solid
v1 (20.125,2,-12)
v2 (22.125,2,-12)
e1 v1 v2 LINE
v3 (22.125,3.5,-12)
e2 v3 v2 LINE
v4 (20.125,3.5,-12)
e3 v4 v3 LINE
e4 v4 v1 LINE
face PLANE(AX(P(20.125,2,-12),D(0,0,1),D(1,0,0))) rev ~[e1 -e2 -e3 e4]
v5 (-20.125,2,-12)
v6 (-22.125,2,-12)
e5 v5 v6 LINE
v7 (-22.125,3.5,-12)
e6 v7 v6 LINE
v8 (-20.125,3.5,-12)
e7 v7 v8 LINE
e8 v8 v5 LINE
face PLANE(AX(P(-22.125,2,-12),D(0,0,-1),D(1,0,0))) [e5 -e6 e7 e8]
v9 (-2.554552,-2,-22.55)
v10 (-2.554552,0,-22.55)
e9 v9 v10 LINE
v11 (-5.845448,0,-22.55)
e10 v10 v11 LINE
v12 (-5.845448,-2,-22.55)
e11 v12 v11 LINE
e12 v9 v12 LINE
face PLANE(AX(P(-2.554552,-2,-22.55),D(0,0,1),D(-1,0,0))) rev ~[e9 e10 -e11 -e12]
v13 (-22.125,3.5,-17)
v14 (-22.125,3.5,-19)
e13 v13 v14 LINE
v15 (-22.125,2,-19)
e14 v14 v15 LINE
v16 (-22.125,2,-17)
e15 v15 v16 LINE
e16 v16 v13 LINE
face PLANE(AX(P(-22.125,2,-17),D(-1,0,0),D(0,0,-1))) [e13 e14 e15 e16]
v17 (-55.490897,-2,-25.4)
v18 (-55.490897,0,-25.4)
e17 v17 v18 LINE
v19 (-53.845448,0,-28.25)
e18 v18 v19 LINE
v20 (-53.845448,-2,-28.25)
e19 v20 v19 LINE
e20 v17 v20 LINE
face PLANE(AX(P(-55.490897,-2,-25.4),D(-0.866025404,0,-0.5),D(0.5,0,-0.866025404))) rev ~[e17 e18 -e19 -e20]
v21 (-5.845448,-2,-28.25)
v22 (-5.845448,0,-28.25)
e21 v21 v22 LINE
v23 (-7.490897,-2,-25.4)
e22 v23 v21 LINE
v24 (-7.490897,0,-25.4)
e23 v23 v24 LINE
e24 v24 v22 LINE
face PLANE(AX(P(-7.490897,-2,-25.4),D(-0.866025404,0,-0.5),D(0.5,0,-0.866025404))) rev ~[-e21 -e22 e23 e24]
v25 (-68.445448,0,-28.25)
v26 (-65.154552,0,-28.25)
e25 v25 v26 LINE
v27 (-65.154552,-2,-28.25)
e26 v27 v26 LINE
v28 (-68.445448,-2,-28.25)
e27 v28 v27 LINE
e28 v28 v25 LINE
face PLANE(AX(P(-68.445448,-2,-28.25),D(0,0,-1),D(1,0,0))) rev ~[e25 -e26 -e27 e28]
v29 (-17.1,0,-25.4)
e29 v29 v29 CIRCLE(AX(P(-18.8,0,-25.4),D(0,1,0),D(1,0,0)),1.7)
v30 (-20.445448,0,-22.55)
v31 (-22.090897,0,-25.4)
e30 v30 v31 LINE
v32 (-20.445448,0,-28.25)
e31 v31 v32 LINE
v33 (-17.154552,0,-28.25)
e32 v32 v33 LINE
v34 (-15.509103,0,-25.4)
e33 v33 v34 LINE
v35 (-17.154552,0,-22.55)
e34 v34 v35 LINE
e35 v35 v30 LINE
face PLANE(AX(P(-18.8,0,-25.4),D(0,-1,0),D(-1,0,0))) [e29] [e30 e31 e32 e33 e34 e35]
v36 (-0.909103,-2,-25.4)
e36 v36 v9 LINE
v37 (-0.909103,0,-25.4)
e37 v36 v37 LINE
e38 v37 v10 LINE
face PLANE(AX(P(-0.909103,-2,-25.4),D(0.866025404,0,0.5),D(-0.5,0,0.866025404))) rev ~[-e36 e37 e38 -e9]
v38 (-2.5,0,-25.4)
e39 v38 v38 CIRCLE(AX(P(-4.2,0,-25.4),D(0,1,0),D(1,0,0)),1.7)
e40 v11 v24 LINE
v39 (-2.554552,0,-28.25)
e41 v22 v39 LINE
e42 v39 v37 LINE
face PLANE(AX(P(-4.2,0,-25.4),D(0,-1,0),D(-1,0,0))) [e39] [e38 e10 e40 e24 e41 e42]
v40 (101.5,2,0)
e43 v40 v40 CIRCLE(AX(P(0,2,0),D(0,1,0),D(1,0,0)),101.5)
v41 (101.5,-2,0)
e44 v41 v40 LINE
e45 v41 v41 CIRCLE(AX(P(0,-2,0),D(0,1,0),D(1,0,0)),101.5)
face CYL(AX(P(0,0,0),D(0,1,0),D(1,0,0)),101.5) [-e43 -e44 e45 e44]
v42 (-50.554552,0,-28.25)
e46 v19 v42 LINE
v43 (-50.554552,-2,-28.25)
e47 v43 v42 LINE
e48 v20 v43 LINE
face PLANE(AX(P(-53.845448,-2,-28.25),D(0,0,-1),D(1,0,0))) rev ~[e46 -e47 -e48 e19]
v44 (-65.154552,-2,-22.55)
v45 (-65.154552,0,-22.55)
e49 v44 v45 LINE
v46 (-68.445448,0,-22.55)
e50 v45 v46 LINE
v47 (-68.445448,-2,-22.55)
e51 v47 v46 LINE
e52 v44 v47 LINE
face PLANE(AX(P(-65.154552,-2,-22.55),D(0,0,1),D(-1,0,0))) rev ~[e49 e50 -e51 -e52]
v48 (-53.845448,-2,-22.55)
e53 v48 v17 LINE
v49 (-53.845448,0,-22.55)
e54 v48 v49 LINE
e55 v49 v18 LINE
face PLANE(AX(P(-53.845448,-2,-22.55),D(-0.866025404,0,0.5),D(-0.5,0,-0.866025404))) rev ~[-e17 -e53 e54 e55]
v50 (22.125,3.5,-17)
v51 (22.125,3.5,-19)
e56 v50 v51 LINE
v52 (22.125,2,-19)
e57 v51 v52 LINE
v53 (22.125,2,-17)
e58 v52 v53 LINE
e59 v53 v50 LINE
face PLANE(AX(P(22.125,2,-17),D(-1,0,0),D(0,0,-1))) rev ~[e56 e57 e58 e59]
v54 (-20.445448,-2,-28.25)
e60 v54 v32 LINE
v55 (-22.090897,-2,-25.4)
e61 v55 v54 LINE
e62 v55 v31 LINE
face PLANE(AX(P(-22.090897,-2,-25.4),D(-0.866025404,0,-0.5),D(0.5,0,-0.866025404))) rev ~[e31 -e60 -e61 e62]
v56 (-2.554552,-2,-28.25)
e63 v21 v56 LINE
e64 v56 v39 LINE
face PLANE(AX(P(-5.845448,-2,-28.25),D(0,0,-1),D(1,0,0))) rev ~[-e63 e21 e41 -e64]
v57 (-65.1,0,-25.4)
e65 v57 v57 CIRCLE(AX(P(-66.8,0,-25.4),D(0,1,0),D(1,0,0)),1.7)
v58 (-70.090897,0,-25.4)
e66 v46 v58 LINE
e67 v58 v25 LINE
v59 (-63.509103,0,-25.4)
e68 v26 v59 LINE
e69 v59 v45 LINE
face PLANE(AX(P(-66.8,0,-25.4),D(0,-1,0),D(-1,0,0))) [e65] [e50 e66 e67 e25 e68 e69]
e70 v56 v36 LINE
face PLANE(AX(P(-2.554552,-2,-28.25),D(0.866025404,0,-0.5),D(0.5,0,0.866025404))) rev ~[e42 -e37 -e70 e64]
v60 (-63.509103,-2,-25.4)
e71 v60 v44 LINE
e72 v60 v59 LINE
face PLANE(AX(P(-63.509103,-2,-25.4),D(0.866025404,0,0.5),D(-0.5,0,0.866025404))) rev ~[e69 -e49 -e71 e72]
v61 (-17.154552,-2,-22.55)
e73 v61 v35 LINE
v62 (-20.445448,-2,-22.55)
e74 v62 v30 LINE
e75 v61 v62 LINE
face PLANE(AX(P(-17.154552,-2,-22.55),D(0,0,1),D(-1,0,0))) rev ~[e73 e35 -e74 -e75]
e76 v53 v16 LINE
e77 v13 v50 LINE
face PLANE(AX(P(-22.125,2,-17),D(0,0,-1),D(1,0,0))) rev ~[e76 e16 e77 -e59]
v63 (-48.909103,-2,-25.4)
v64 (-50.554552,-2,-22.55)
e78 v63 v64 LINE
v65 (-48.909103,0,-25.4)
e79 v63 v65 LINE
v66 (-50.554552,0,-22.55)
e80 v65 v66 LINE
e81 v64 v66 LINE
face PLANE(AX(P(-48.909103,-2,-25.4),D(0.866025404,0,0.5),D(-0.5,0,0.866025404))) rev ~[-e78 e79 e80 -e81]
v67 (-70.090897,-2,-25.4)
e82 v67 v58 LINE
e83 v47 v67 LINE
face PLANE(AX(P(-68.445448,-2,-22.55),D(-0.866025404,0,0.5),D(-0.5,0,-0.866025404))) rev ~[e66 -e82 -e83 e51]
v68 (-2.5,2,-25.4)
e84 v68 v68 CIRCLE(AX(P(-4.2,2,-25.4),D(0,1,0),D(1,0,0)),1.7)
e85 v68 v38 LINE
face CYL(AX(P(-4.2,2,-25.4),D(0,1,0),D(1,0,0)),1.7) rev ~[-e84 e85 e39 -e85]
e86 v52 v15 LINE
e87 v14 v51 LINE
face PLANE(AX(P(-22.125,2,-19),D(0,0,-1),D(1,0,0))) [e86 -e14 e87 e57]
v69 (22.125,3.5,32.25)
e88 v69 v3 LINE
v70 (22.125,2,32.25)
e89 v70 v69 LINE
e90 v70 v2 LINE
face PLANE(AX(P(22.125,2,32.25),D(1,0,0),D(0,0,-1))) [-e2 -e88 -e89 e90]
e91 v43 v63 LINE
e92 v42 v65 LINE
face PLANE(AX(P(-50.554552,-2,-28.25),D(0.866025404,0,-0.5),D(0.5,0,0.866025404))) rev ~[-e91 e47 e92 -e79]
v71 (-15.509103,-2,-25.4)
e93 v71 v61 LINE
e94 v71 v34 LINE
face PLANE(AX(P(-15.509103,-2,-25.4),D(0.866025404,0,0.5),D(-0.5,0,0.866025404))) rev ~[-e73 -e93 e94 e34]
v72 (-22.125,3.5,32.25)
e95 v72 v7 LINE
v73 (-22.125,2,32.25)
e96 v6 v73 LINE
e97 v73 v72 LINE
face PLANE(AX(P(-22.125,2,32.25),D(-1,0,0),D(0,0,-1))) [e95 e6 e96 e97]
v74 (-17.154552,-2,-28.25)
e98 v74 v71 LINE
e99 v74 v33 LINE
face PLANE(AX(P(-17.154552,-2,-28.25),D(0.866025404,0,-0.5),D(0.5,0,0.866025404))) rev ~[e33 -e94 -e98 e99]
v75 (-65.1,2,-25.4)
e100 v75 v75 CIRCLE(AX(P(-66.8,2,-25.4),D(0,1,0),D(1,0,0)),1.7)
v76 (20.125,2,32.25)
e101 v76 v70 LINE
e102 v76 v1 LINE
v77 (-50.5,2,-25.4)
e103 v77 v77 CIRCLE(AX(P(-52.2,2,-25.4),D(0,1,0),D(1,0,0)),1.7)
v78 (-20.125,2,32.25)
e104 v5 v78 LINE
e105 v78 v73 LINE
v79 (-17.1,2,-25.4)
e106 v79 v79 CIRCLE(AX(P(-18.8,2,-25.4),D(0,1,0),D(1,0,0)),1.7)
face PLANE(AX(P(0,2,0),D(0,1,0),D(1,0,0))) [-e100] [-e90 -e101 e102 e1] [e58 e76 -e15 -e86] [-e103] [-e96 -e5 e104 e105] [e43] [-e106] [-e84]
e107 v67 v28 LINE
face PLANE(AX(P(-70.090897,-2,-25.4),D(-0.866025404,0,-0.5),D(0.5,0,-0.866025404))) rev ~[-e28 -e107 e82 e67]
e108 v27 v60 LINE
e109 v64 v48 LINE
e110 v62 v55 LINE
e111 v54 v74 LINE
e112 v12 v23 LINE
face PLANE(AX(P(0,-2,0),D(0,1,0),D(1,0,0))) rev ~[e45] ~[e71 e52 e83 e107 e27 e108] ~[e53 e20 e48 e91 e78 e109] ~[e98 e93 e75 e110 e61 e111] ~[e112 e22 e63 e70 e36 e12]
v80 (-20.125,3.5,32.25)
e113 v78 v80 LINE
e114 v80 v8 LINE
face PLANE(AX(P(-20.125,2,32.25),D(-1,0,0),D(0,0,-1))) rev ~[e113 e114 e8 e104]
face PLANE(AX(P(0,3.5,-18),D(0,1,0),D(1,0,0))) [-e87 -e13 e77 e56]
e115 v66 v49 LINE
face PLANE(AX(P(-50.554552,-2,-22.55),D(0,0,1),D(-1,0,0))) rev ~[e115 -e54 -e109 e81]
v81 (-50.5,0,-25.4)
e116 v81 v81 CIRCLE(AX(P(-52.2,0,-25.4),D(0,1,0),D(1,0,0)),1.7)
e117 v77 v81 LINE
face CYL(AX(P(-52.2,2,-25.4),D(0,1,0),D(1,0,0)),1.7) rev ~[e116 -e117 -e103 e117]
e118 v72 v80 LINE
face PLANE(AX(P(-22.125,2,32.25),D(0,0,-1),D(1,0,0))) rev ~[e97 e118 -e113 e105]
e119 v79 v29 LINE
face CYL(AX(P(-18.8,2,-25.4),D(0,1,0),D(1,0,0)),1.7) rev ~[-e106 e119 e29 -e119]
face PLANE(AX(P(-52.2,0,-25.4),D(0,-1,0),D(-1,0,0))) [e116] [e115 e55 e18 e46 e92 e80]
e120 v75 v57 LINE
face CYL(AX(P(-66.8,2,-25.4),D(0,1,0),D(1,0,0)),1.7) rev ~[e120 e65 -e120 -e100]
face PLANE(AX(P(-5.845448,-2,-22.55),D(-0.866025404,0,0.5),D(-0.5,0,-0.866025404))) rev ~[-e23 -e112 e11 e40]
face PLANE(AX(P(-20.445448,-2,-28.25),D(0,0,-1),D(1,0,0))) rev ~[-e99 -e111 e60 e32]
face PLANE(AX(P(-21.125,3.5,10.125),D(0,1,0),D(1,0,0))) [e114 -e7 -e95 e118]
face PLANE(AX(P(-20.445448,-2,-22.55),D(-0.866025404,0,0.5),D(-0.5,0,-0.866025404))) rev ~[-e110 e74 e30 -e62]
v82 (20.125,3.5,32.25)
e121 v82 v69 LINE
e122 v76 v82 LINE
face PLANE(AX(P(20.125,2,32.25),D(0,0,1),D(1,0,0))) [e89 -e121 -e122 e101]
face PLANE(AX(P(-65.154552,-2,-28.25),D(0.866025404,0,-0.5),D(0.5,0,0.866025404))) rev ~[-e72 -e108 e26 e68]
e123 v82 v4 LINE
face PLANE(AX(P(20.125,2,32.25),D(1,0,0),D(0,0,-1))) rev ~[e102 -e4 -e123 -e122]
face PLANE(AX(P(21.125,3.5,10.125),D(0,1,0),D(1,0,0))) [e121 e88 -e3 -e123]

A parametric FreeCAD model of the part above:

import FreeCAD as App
import Part
import Sketcher
from FreeCAD import Vector
Q = App.Units.Quantity

doc = App.newDocument("Part")
params = doc.addObject("Spreadsheet::Sheet", "Params")
for row, (alias, value) in enumerate([
    ("sketch1_diameter", "203 mm"),
    ("pad1_length", "4 mm"),
    ("sketch2_width", "2 mm"),
    ("sketch2_width2", "44.25 mm"),
    ("pad2_length", "3 mm"),
    ("sketch3_diameter", "3.4 mm"),
    ("pocket2_length", "2 mm"),
], start=1):
    params.set(f"A{row}", alias)
    params.set(f"B{row}", "=" + value)
    params.setAlias(f"B{row}", alias)

body = doc.addObject("PartDesign::Body", "Body")

sketch1 = body.newObject("Sketcher::SketchObject", "Sketch")
sketch1.AttachmentSupport = (doc.getObject("XZ_Plane"), [""])
sketch1.MapMode = "FlatFace"
sketch1.addGeometry(Part.Circle(Vector(0, 0, 0), Vector(0, 0, 1), 101.5), False)
sketch1.addConstraint([
    Sketcher.Constraint("Coincident", 0, 3, -1, 1),
    Sketcher.Constraint("Diameter", 0, 203.0),
])
sketch1.setExpression("Constraints[1]", "Params.sketch1_diameter")
pad1 = body.newObject("PartDesign::Pad", "Pad")
pad1.Profile = sketch1
pad1.setExpression("Length", "Params.pad1_length")
pad1.Midplane = True

sketch2 = body.newObject("Sketcher::SketchObject", "Sketch001")
sketch2.AttachmentSupport = (doc.getObject("XZ_Plane"), [""])
sketch2.MapMode = "FlatFace"
sketch2.AttachmentOffset = App.Placement(Vector(0, 0, -2), App.Rotation())
sketch2.addGeometry([
    Part.LineSegment(Vector(-22.125, -19, 0), Vector(-22.125, -17, 0)),
    Part.LineSegment(Vector(-22.125, -17, 0), Vector(22.125, -17, 0)),
    Part.LineSegment(Vector(22.125, -17, 0), Vector(22.125, -19, 0)),
    Part.LineSegment(Vector(22.125, -19, 0), Vector(-22.125, -19, 0)),
    Part.LineSegment(Vector(-22.125, -12, 0), Vector(-22.125, 32.25, 0)),
    Part.LineSegment(Vector(-22.125, 32.25, 0), Vector(-20.125, 32.25, 0)),
    Part.LineSegment(Vector(-20.125, 32.25, 0), Vector(-20.125, -12, 0)),
    Part.LineSegment(Vector(-20.125, -12, 0), Vector(-22.125, -12, 0)),
    Part.LineSegment(Vector(20.125, -12, 0), Vector(20.125, 32.25, 0)),
    Part.LineSegment(Vector(20.125, 32.25, 0), Vector(22.125, 32.25, 0)),
    Part.LineSegment(Vector(22.125, 32.25, 0), Vector(22.125, -12, 0)),
    Part.LineSegment(Vector(22.125, -12, 0), Vector(20.125, -12, 0)),
], False)
sketch2.addConstraint([
    Sketcher.Constraint("Coincident", 0, 2, 1, 1),
    Sketcher.Constraint("Coincident", 1, 2, 2, 1),
    Sketcher.Constraint("Coincident", 2, 2, 3, 1),
    Sketcher.Constraint("Coincident", 3, 2, 0, 1),
    Sketcher.Constraint("Coincident", 4, 2, 5, 1),
    Sketcher.Constraint("Coincident", 5, 2, 6, 1),
    Sketcher.Constraint("Coincident", 6, 2, 7, 1),
    Sketcher.Constraint("Coincident", 7, 2, 4, 1),
    Sketcher.Constraint("Coincident", 8, 2, 9, 1),
    Sketcher.Constraint("Coincident", 9, 2, 10, 1),
    Sketcher.Constraint("Coincident", 10, 2, 11, 1),
    Sketcher.Constraint("Coincident", 11, 2, 8, 1),
    Sketcher.Constraint("Vertical", 0),
    Sketcher.Constraint("Horizontal", 1),
    Sketcher.Constraint("Vertical", 2),
    Sketcher.Constraint("Horizontal", 3),
    Sketcher.Constraint("Vertical", 4),
    Sketcher.Constraint("Horizontal", 5),
    Sketcher.Constraint("Vertical", 6),
    Sketcher.Constraint("Horizontal", 7),
    Sketcher.Constraint("Vertical", 8),
    Sketcher.Constraint("Horizontal", 9),
    Sketcher.Constraint("Vertical", 10),
    Sketcher.Constraint("Horizontal", 11),
    Sketcher.Constraint("Symmetric", 5, 2, 8, 2, -2),
    Sketcher.Constraint("Symmetric", 7, 2, 10, 2, -2),
    Sketcher.Constraint("Vertical", 3, 2, 4, 2),
    Sketcher.Constraint("Vertical", 2, 2, 9, 2),
    Sketcher.Constraint("Equal", 11, 0),
    Sketcher.Constraint("Equal", 3, 4),
    Sketcher.Constraint("DistanceX", 5, 1, 5, 2, 2.0),
    Sketcher.Constraint("DistanceY", 0, 2, -1, 1, 17.0),
    Sketcher.Constraint("DistanceY", 6, 2, -1, 1, 12.0),
    Sketcher.Constraint("DistanceX", 1, 1, 1, 2, 44.25),
])
sketch2.setExpression("Constraints[30]", "Params.sketch2_width")
sketch2.setExpression("Constraints[33]", "Params.sketch2_width2")
pad2 = body.newObject("PartDesign::Pad", "Pad001")
pad2.Profile = sketch2
pad2.setExpression("Length", "Params.pad2_length")
pad2.Midplane = True

sketch3 = body.newObject("Sketcher::SketchObject", "Sketch002")
sketch3.AttachmentSupport = (doc.getObject("XZ_Plane"), [""])
sketch3.MapMode = "FlatFace"
sketch3.AttachmentOffset = App.Placement(Vector(0, 0, -2), App.Rotation())
sketch3.addGeometry([
    Part.Circle(Vector(-66.8, -25.4, 0), Vector(0, 0, 1), 1.7),
    Part.Circle(Vector(-52.2, -25.4, 0), Vector(0, 0, 1), 1.7),
    Part.Circle(Vector(-18.8, -25.4, 0), Vector(0, 0, 1), 1.7),
    Part.Circle(Vector(-4.2, -25.4, 0), Vector(0, 0, 1), 1.7),
], False)
sketch3.addConstraint([
    Sketcher.Constraint("Equal", 0, 1),
    Sketcher.Constraint("Equal", 1, 2),
    Sketcher.Constraint("Equal", 2, 3),
    Sketcher.Constraint("Horizontal", 0, 3, 1, 3),
    Sketcher.Constraint("Horizontal", 1, 3, 2, 3),
    Sketcher.Constraint("Horizontal", 2, 3, 3, 3),
    Sketcher.Constraint("Diameter", 0, 3.4),
    Sketcher.Constraint("DistanceX", 0, 3, 2, 3, 48.0),
    Sketcher.Constraint("DistanceX", 1, 3, 3, 3, 48.0),
    Sketcher.Constraint("DistanceX", 0, 3, -1, 1, 66.8),
    Sketcher.Constraint("DistanceY", 0, 3, -1, 1, 25.4),
    Sketcher.Constraint("DistanceX", 1, 3, -1, 1, 52.2),
])
sketch3.setExpression("Constraints[6]", "Params.sketch3_diameter")
pocket1 = body.newObject("PartDesign::Pocket", "Pocket")
pocket1.Profile = sketch3
pocket1.Type = "ThroughAll"
pocket1.Reversed = True

sketch4 = body.newObject("Sketcher::SketchObject", "Sketch003")
sketch4.AttachmentSupport = (doc.getObject("XZ_Plane"), [""])
sketch4.MapMode = "FlatFace"
sketch4.AttachmentOffset = App.Placement(Vector(0, 0, 2), App.Rotation())
sketch4.addGeometry([
    Part.LineSegment(Vector(-7.490897, -25.4, 0), Vector(-5.845448, -28.25, 0)),
    Part.LineSegment(Vector(-5.845448, -28.25, 0), Vector(-2.554552, -28.25, 0)),
    Part.LineSegment(Vector(-2.554552, -28.25, 0), Vector(-0.909103, -25.4, 0)),
    Part.LineSegment(Vector(-0.909103, -25.4, 0), Vector(-2.554552, -22.55, 0)),
    Part.LineSegment(Vector(-2.554552, -22.55, 0), Vector(-5.845448, -22.55, 0)),
    Part.LineSegment(Vector(-5.845448, -22.55, 0), Vector(-7.490897, -25.4, 0)),
    Part.LineSegment(Vector(-22.090897, -25.4, 0), Vector(-20.445448, -28.25, 0)),
    Part.LineSegment(Vector(-20.445448, -28.25, 0), Vector(-17.154552, -28.25, 0)),
    Part.LineSegment(Vector(-17.154552, -28.25, 0), Vector(-15.509103, -25.4, 0)),
    Part.LineSegment(Vector(-15.509103, -25.4, 0), Vector(-17.154552, -22.55, 0)),
    Part.LineSegment(Vector(-17.154552, -22.55, 0), Vector(-20.445448, -22.55, 0)),
    Part.LineSegment(Vector(-20.445448, -22.55, 0), Vector(-22.090897, -25.4, 0)),
    Part.LineSegment(Vector(-55.490897, -25.4, 0), Vector(-53.845448, -28.25, 0)),
    Part.LineSegment(Vector(-53.845448, -28.25, 0), Vector(-50.554552, -28.25, 0)),
    Part.LineSegment(Vector(-50.554552, -28.25, 0), Vector(-48.909103, -25.4, 0)),
    Part.LineSegment(Vector(-48.909103, -25.4, 0), Vector(-50.554552, -22.55, 0)),
    Part.LineSegment(Vector(-50.554552, -22.55, 0), Vector(-53.845448, -22.55, 0)),
    Part.LineSegment(Vector(-53.845448, -22.55, 0), Vector(-55.490897, -25.4, 0)),
    Part.LineSegment(Vector(-70.090897, -25.4, 0), Vector(-68.445448, -28.25, 0)),
    Part.LineSegment(Vector(-68.445448, -28.25, 0), Vector(-65.154552, -28.25, 0)),
    Part.LineSegment(Vector(-65.154552, -28.25, 0), Vector(-63.509103, -25.4, 0)),
    Part.LineSegment(Vector(-63.509103, -25.4, 0), Vector(-65.154552, -22.55, 0)),
    Part.LineSegment(Vector(-65.154552, -22.55, 0), Vector(-68.445448, -22.55, 0)),
    Part.LineSegment(Vector(-68.445448, -22.55, 0), Vector(-70.090897, -25.4, 0)),
], False)
sketch4.addConstraint([
    Sketcher.Constraint("Coincident", 0, 2, 1, 1),
    Sketcher.Constraint("Coincident", 1, 2, 2, 1),
    Sketcher.Constraint("Coincident", 2, 2, 3, 1),
    Sketcher.Constraint("Coincident", 3, 2, 4, 1),
    Sketcher.Constraint("Coincident", 4, 2, 5, 1),
    Sketcher.Constraint("Coincident", 5, 2, 0, 1),
    Sketcher.Constraint("Coincident", 6, 2, 7, 1),
    Sketcher.Constraint("Coincident", 7, 2, 8, 1),
    Sketcher.Constraint("Coincident", 8, 2, 9, 1),
    Sketcher.Constraint("Coincident", 9, 2, 10, 1),
    Sketcher.Constraint("Coincident", 10, 2, 11, 1),
    Sketcher.Constraint("Coincident", 11, 2, 6, 1),
    Sketcher.Constraint("Coincident", 12, 2, 13, 1),
    Sketcher.Constraint("Coincident", 13, 2, 14, 1),
    Sketcher.Constraint("Coincident", 14, 2, 15, 1),
    Sketcher.Constraint("Coincident", 15, 2, 16, 1),
    Sketcher.Constraint("Coincident", 16, 2, 17, 1),
    Sketcher.Constraint("Coincident", 17, 2, 12, 1),
    Sketcher.Constraint("Coincident", 18, 2, 19, 1),
    Sketcher.Constraint("Coincident", 19, 2, 20, 1),
    Sketcher.Constraint("Coincident", 20, 2, 21, 1),
    Sketcher.Constraint("Coincident", 21, 2, 22, 1),
    Sketcher.Constraint("Coincident", 22, 2, 23, 1),
    Sketcher.Constraint("Coincident", 23, 2, 18, 1),
    Sketcher.Constraint("Horizontal", 1),
    Sketcher.Constraint("Horizontal", 4),
    Sketcher.Constraint("Horizontal", 7),
    Sketcher.Constraint("Horizontal", 10),
    Sketcher.Constraint("Horizontal", 13),
    Sketcher.Constraint("Horizontal", 16),
    Sketcher.Constraint("Horizontal", 19),
    Sketcher.Constraint("Horizontal", 22),
    Sketcher.Constraint("Parallel", 0, 3),
    Sketcher.Constraint("Parallel", 2, 5),
    Sketcher.Constraint("Parallel", 3, 6),
    Sketcher.Constraint("Parallel", 5, 8),
    Sketcher.Constraint("Parallel", 6, 9),
    Sketcher.Constraint("Parallel", 8, 11),
    Sketcher.Constraint("Parallel", 9, 12),
    Sketcher.Constraint("Parallel", 11, 14),
    Sketcher.Constraint("Parallel", 12, 15),
    Sketcher.Constraint("Parallel", 14, 17),
    Sketcher.Constraint("Parallel", 15, 18),
    Sketcher.Constraint("Parallel", 17, 20),
    Sketcher.Constraint("Parallel", 18, 21),
    Sketcher.Constraint("Parallel", 20, 23),
    Sketcher.Constraint("Horizontal", 2, 2, 5, 2),
    Sketcher.Constraint("Horizontal", 1, 2, 6, 2),
    Sketcher.Constraint("Horizontal", 5, 2, 8, 2),
    Sketcher.Constraint("Horizontal", 4, 2, 9, 2),
    Sketcher.Constraint("Horizontal", 8, 2, 11, 2),
    Sketcher.Constraint("Horizontal", 7, 2, 12, 2),
    Sketcher.Constraint("Horizontal", 11, 2, 14, 2),
    Sketcher.Constraint("Horizontal", 10, 2, 15, 2),
    Sketcher.Constraint("Horizontal", 14, 2, 17, 2),
    Sketcher.Constraint("Horizontal", 13, 2, 18, 2),
    Sketcher.Constraint("Horizontal", 17, 2, 20, 2),
    Sketcher.Constraint("Horizontal", 16, 2, 21, 2),
    Sketcher.Constraint("Horizontal", 20, 2, 23, 2),
    Sketcher.Constraint("Vertical", 1, 2, 3, 2),
    Sketcher.Constraint("Vertical", 0, 2, 4, 2),
    Sketcher.Constraint("Equal", 4, 7),
    Sketcher.Constraint("Equal", 10, 13),
    Sketcher.Constraint("Equal", 16, 19),
    Sketcher.Constraint("Angle", 0, Q("-60 deg")),
    Sketcher.Constraint("DistanceY", 2, 2, -1, 1, 25.4),
    Sketcher.Constraint("DistanceY", 1, 2, 3, 2, 5.7),
    Sketcher.Constraint("DistanceX", 6, 2, 0, 2, 14.6),
    Sketcher.Constraint("DistanceX", 12, 2, 6, 2, 33.4),
    Sketcher.Constraint("DistanceX", 18, 2, 12, 2, 14.6),
    Sketcher.Constraint("DistanceX", 1, 1, 1, 2, 3.290897),
    Sketcher.Constraint("DistanceX", 0, 2, -1, 1, 5.845448),
])
pocket2 = body.newObject("PartDesign::Pocket", "Pocket001")
pocket2.Profile = sketch4
pocket2.setExpression("Length", "Params.pocket2_length")

doc.recompute()
